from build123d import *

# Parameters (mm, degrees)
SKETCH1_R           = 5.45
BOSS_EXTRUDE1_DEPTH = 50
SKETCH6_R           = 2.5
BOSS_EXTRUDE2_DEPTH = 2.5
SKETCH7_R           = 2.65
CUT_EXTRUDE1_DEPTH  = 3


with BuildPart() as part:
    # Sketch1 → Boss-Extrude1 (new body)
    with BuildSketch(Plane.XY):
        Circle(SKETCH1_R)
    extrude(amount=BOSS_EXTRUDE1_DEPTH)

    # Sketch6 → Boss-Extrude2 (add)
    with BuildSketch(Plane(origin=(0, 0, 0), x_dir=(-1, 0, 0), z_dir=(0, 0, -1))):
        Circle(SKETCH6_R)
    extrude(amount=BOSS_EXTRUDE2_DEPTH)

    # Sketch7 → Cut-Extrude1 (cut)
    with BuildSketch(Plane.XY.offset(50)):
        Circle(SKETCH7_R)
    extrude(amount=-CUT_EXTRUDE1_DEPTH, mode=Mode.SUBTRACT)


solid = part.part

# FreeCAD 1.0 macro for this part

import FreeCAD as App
import Part
import Sketcher
Q = App.Units.Quantity

doc = App.newDocument("Part")
body = doc.addObject("PartDesign::Body", "Body")

sketch1 = body.newObject("Sketcher::SketchObject", "Sketch")
sketch1.AttachmentSupport = (doc.getObject("XY_Plane"), [""])
sketch1.MapMode = "FlatFace"
sketch1.addGeometry(Part.Circle(App.Vector(0, 0, 0), App.Vector(0, 0, 1), 5), False)
sketch1.addConstraint(Sketcher.Constraint("Coincident", 0, 3, -1, 1))
sketch1.addConstraint(Sketcher.Constraint("Diameter", 0, Q("10.9 mm")))
pad1 = body.newObject("PartDesign::Pad", "Pad")
pad1.Profile = sketch1
pad1.Length = 50

sketch2 = body.newObject("Sketcher::SketchObject", "Sketch001")
sketch2.AttachmentSupport = (doc.getObject("XY_Plane"), [""])
sketch2.MapMode = "FlatFace"
sketch2.addGeometry(Part.Circle(App.Vector(0, 0, 0), App.Vector(0, 0, 1), 2.5), False)
sketch2.addConstraint(Sketcher.Constraint("Coincident", 0, 3, -1, 1))
sketch2.addConstraint(Sketcher.Constraint("Diameter", 0, Q("5 mm")))
pad2 = body.newObject("PartDesign::Pad", "Pad001")
pad2.Profile = sketch2
pad2.Length = 2.5
pad2.Reversed = True

sketch3 = body.newObject("Sketcher::SketchObject", "Sketch002")
sketch3.AttachmentSupport = (doc.getObject("XY_Plane"), [""])
sketch3.MapMode = "FlatFace"
sketch3.AttachmentOffset = App.Placement(App.Vector(0, 0, 50), App.Rotation())
sketch3.addGeometry(Part.Circle(App.Vector(0, 0, 0), App.Vector(0, 0, 1), 2.6), False)
sketch3.addConstraint(Sketcher.Constraint("Coincident", 0, 3, -1, 1))
sketch3.addConstraint(Sketcher.Constraint("Diameter", 0, Q("5.3 mm")))
pocket1 = body.newObject("PartDesign::Pocket", "Pocket")
pocket1.Profile = sketch3
pocket1.Length = 3

doc.recompute()
